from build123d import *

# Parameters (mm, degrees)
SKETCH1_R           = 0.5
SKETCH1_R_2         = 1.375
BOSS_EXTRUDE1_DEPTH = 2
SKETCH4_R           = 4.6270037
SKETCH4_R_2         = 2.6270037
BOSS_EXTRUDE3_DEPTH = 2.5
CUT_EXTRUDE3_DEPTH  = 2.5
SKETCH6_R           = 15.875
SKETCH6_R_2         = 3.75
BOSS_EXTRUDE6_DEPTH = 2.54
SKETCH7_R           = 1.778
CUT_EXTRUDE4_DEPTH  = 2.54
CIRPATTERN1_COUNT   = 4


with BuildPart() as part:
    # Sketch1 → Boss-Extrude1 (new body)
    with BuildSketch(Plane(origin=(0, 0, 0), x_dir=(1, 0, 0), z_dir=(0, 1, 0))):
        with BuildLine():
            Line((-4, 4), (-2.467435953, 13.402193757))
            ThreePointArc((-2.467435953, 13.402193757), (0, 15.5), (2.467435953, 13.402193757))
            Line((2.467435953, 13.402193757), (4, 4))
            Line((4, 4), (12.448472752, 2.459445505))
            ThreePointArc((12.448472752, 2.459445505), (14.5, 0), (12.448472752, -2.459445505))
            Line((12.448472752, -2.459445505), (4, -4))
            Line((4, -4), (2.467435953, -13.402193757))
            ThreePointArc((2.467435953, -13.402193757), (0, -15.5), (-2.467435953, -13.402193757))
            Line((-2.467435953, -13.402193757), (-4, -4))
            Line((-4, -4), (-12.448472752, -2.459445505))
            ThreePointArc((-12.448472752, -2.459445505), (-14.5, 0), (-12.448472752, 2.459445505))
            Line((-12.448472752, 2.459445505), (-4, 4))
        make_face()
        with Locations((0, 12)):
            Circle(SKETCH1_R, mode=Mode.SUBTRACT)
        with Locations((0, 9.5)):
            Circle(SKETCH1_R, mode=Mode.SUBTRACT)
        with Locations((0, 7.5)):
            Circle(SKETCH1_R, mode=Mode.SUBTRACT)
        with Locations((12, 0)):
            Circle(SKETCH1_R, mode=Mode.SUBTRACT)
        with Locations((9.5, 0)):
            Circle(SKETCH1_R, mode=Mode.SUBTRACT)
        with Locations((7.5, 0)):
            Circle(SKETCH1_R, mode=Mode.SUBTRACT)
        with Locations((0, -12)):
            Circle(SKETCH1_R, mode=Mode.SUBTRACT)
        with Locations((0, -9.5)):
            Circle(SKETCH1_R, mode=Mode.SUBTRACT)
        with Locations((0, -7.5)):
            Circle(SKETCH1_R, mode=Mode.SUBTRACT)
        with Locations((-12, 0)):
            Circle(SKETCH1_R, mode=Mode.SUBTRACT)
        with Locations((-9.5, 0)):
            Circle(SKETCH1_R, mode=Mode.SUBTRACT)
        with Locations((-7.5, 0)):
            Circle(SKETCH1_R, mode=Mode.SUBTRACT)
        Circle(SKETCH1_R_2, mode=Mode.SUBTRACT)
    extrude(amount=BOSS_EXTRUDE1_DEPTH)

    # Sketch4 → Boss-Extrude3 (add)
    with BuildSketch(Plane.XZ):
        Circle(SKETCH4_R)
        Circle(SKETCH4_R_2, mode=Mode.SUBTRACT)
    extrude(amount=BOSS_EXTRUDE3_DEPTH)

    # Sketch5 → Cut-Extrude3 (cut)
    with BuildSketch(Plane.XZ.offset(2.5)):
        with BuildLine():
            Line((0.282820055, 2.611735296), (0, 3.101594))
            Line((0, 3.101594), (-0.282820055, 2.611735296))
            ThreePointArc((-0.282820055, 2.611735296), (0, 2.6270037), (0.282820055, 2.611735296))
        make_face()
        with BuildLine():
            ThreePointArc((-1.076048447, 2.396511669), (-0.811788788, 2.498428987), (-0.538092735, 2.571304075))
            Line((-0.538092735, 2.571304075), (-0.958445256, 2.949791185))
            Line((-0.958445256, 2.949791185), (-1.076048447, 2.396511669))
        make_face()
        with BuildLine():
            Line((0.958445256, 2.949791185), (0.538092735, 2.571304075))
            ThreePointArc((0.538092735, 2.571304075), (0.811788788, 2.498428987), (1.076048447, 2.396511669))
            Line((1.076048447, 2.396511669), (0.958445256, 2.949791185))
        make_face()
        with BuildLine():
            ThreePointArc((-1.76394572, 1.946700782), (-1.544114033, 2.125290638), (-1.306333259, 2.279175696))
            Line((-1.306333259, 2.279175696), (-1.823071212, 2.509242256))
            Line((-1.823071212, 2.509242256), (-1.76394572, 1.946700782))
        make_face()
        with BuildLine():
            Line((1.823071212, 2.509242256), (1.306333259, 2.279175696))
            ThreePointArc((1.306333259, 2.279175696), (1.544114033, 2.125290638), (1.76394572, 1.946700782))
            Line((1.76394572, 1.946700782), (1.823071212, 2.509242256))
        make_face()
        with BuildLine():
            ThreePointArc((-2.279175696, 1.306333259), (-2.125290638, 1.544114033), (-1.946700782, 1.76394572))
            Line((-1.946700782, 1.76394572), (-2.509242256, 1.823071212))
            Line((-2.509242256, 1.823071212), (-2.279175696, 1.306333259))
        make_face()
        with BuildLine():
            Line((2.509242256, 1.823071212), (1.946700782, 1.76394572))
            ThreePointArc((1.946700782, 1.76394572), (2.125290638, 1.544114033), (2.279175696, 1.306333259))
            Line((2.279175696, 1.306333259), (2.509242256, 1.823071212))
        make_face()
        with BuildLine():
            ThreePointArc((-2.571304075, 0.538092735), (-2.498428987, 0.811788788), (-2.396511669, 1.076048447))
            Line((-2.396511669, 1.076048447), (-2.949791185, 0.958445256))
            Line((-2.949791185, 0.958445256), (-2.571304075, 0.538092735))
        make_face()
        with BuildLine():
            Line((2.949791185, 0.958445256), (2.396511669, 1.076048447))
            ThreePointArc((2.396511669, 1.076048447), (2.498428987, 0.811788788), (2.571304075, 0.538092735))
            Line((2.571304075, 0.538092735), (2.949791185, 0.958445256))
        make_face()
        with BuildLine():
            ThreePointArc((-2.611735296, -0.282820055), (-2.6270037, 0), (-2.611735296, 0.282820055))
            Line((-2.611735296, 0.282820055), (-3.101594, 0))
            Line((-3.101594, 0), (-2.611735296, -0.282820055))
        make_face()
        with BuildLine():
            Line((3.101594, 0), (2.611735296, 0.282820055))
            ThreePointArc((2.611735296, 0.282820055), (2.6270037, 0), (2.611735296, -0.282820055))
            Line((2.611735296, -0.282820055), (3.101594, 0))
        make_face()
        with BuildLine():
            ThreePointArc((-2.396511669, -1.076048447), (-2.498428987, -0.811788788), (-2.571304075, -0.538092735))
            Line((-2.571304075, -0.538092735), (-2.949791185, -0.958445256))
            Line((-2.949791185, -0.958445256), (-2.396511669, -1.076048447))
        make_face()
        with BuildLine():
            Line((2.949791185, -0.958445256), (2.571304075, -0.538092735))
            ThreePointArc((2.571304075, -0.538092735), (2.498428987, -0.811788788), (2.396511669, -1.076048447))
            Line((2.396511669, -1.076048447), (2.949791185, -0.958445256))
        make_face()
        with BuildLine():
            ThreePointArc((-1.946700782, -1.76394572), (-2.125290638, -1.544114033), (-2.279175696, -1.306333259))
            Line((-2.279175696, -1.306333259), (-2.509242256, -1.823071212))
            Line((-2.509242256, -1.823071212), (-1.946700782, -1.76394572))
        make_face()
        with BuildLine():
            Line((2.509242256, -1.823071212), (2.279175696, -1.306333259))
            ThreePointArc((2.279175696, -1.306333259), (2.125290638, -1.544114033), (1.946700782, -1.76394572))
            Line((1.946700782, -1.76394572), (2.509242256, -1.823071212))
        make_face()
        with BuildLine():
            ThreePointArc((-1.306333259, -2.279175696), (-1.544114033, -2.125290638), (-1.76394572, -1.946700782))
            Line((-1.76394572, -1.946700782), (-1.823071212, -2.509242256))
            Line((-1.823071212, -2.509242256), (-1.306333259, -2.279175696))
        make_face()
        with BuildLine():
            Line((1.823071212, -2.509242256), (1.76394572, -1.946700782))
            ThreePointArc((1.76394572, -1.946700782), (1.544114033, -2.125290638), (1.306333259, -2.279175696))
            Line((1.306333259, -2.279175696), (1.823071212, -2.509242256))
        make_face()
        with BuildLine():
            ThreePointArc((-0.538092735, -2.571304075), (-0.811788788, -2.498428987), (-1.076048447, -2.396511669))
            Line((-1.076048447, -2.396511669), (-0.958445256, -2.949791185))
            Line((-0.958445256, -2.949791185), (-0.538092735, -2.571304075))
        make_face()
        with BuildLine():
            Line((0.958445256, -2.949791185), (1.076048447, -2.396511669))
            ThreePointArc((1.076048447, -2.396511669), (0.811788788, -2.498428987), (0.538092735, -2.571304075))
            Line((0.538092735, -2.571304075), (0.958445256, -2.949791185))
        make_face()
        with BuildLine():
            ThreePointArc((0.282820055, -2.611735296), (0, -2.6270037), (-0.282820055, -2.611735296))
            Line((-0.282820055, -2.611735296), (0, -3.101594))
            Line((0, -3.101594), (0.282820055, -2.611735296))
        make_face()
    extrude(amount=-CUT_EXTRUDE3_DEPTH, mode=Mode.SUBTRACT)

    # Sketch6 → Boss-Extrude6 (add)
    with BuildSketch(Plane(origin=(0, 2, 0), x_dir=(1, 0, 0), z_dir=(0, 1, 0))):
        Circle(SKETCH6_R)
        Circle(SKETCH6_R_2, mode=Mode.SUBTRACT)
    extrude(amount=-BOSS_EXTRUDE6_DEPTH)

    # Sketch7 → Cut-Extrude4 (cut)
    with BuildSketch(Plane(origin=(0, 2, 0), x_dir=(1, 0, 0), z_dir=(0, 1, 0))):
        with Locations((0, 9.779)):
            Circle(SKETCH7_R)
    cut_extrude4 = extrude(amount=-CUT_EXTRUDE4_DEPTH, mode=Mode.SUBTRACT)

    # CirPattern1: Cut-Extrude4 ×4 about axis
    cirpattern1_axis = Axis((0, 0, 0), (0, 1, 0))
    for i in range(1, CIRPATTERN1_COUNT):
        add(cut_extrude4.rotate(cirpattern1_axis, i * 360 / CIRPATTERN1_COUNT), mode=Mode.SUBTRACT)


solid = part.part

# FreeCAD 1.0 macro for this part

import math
import FreeCAD as App
import Part
import Sketcher
Q = App.Units.Quantity

doc = App.newDocument("Part")
body = doc.addObject("PartDesign::Body", "Body")

# Sketch on XZ plane
sketch1 = body.newObject("Sketcher::SketchObject", "Sketch")
sketch1.AttachmentSupport = (doc.getObject("XZ_Plane"), [""])
sketch1.MapMode = "FlatFace"
sketch1.addGeometry([
    Part.LineSegment(App.Vector(-2.5, -13.4, 0), App.Vector(-4, -4, 0)),  # 0
    Part.LineSegment(App.Vector(-4, -4, 0), App.Vector(-12.4, -2.5, 0)),  # 1
    Part.ArcOfCircle(Part.Circle(App.Vector(-12, 0, 0), App.Vector(0, 0, 1), 2.5), math.radians(100), math.radians(260)),  # 2
    Part.LineSegment(App.Vector(-12.4, 2.5, 0), App.Vector(-4, 4, 0)),  # 3
    Part.LineSegment(App.Vector(-4, 4, 0), App.Vector(-2.5, 13.4, 0)),  # 4
    Part.ArcOfCircle(Part.Circle(App.Vector(0, 13, 0), App.Vector(0, 0, 1), 2.5), math.radians(9), math.radians(171)),  # 5
    Part.LineSegment(App.Vector(2.5, 13.4, 0), App.Vector(4, 4, 0)),  # 6
    Part.LineSegment(App.Vector(4, 4, 0), App.Vector(12.4, 2.5, 0)),  # 7
    Part.ArcOfCircle(Part.Circle(App.Vector(12, 0, 0), App.Vector(0, 0, 1), 2.5), math.radians(-80), math.radians(80)),  # 8
    Part.LineSegment(App.Vector(12.4, -2.5, 0), App.Vector(4, -4, 0)),  # 9
    Part.LineSegment(App.Vector(4, -4, 0), App.Vector(2.5, -13.4, 0)),  # 10
    Part.ArcOfCircle(Part.Circle(App.Vector(0, -13, 0), App.Vector(0, 0, 1), 2.5), math.radians(-171), math.radians(-9)),  # 11
    Part.Circle(App.Vector(0, 12, 0), App.Vector(0, 0, 1), 0.5),  # 12
    Part.Circle(App.Vector(0, 9.5, 0), App.Vector(0, 0, 1), 0.5),  # 13
    Part.Circle(App.Vector(0, 7.5, 0), App.Vector(0, 0, 1), 0.5),  # 14
    Part.Circle(App.Vector(12, 0, 0), App.Vector(0, 0, 1), 0.5),  # 15
    Part.Circle(App.Vector(9.5, 0, 0), App.Vector(0, 0, 1), 0.5),  # 16
    Part.Circle(App.Vector(7.5, 0, 0), App.Vector(0, 0, 1), 0.5),  # 17
    Part.Circle(App.Vector(0, 0, 0), App.Vector(0, 0, 1), 1.4),  # 18
    Part.Circle(App.Vector(-7.5, 0, 0), App.Vector(0, 0, 1), 0.5),  # 19
    Part.Circle(App.Vector(-9.5, 0, 0), App.Vector(0, 0, 1), 0.5),  # 20
    Part.Circle(App.Vector(-12, 0, 0), App.Vector(0, 0, 1), 0.5),  # 21
    Part.Circle(App.Vector(0, -7.5, 0), App.Vector(0, 0, 1), 0.5),  # 22
    Part.Circle(App.Vector(0, -9.5, 0), App.Vector(0, 0, 1), 0.5),  # 23
    Part.Circle(App.Vector(0, -12, 0), App.Vector(0, 0, 1), 0.5),  # 24
], False)
sketch1.addConstraint([
    Sketcher.Constraint("Coincident", 0, 2, 1, 1),
    Sketcher.Constraint("Tangent", 1, 2, 2, 2),
    Sketcher.Constraint("Tangent", 2, 1, 3, 1),
    Sketcher.Constraint("Coincident", 3, 2, 4, 1),
    Sketcher.Constraint("Tangent", 4, 2, 5, 2),
    Sketcher.Constraint("Tangent", 5, 1, 6, 1),
    Sketcher.Constraint("Coincident", 6, 2, 7, 1),
    Sketcher.Constraint("Tangent", 7, 2, 8, 2),
    Sketcher.Constraint("Tangent", 8, 1, 9, 1),
    Sketcher.Constraint("Coincident", 9, 2, 10, 1),
    Sketcher.Constraint("Tangent", 10, 2, 11, 2),
    Sketcher.Constraint("Tangent", 11, 1, 0, 1),
    Sketcher.Constraint("Coincident", 18, 3, -1, 1),
    Sketcher.Constraint("Coincident", 15, 3, 8, 3),
    Sketcher.Constraint("Coincident", 21, 3, 2, 3),
    Sketcher.Constraint("Equal", 2, 5),
    Sketcher.Constraint("Equal", 5, 8),
    Sketcher.Constraint("Equal", 8, 11),
    Sketcher.Constraint("Equal", 12, 13),
    Sketcher.Constraint("Equal", 13, 14),
    Sketcher.Constraint("Equal", 14, 15),
    Sketcher.Constraint("Equal", 15, 16),
    Sketcher.Constraint("Equal", 16, 17),
    Sketcher.Constraint("Equal", 17, 19),
    Sketcher.Constraint("Equal", 19, 20),
    Sketcher.Constraint("Equal", 20, 21),
    Sketcher.Constraint("Equal", 21, 22),
    Sketcher.Constraint("Equal", 22, 23),
    Sketcher.Constraint("Equal", 23, 24),
    Sketcher.Constraint("Symmetric", 2, 3, 8, 3, -1, 1),
    Sketcher.Constraint("Symmetric", 5, 3, 11, 3, -1, 1),
    Sketcher.Constraint("Symmetric", 17, 3, 19, 3, -1, 1),
    Sketcher.Constraint("Symmetric", 16, 3, 20, 3, -1, 1),
    Sketcher.Constraint("Symmetric", 14, 3, 22, 3, -1, 1),
    Sketcher.Constraint("Symmetric", 13, 3, 23, 3, -1, 1),
    Sketcher.Constraint("Symmetric", 12, 3, 24, 3, -1, 1),
    Sketcher.Constraint("Symmetric", 0, 2, 6, 2, -1, 1),
    Sketcher.Constraint("Symmetric", 3, 2, 9, 2, -1, 1),
    Sketcher.Constraint("Symmetric", 4, 2, 5, 1, -2),
    Sketcher.Constraint("Symmetric", 2, 1, 7, 2, -2),
    Sketcher.Constraint("PointOnObject", 12, 3, -2),
    Sketcher.Constraint("PointOnObject", 13, 3, -2),
    Sketcher.Constraint("PointOnObject", 14, 3, -2),
    Sketcher.Constraint("PointOnObject", 16, 3, -1),
    Sketcher.Constraint("PointOnObject", 17, 3, -1),
    Sketcher.Constraint("Diameter", 12, 1.0),
    Sketcher.Constraint("Radius", 2, 2.5),
    Sketcher.Constraint("Diameter", 18, 2.75),
    Sketcher.Constraint("DistanceX", 2, 3, -1, 1, 12.0),
    Sketcher.Constraint("DistanceY", -1, 1, 5, 3, 13.0),
    Sketcher.Constraint("DistanceY", -1, 1, 12, 3, 12.0),
    Sketcher.Constraint("DistanceX", 0, 2, -1, 1, 4.0),
    Sketcher.Constraint("DistanceY", 0, 2, -1, 1, 4.0),
    Sketcher.Constraint("DistanceY", 14, 3, 13, 3, 2.0),
    Sketcher.Constraint("DistanceX", 17, 3, 16, 3, 2.0),
    Sketcher.Constraint("DistanceY", -1, 1, 13, 3, 9.5),
    Sketcher.Constraint("DistanceX", -1, 1, 16, 3, 9.5),
])
pad1 = body.newObject("PartDesign::Pad", "Pad")
pad1.Profile = sketch1
pad1.Length = 2
pad1.Reversed = True

# Sketch on XZ plane
sketch2 = body.newObject("Sketcher::SketchObject", "Sketch001")
sketch2.AttachmentSupport = (doc.getObject("XZ_Plane"), [""])
sketch2.MapMode = "FlatFace"
sketch2.addGeometry([
    Part.Circle(App.Vector(0, 0, 0), App.Vector(0, 0, 1), 4.6),
    Part.Circle(App.Vector(0, 0, 0), App.Vector(0, 0, 1), 2.6),
], False)
sketch2.addConstraint([
    Sketcher.Constraint("Coincident", 0, 3, -1, 1),
    Sketcher.Constraint("Coincident", 1, 3, -1, 1),
    Sketcher.Constraint("Diameter", 0, 9.254007),
    Sketcher.Constraint("Diameter", 1, 5.254007),
])
pad2 = body.newObject("PartDesign::Pad", "Pad001")
pad2.Profile = sketch2
pad2.Length = 2.5

# Sketch on XZ plane
sketch3 = body.newObject("Sketcher::SketchObject", "Sketch002")
sketch3.AttachmentSupport = (doc.getObject("XZ_Plane"), [""])
sketch3.MapMode = "FlatFace"
sketch3.AttachmentOffset = App.Placement(App.Vector(0, 0, 2.5), App.Rotation())
sketch3.addGeometry([
    Part.LineSegment(App.Vector(0.3, 2.6, 0), App.Vector(0, 3.1, 0)),  # 0
    Part.LineSegment(App.Vector(0, 3.1, 0), App.Vector(-0.3, 2.6, 0)),  # 1
    Part.ArcOfCircle(Part.Circle(App.Vector(0, 0, 0), App.Vector(0, 0, 1), 2.6), math.radians(83.82), math.radians(96.18)),  # 2
    Part.ArcOfCircle(Part.Circle(App.Vector(0, 0, 0), App.Vector(0, 0, 1), 2.6), math.radians(101.82), math.radians(114.18)),  # 3
    Part.LineSegment(App.Vector(-0.5, 2.6, 0), App.Vector(-1, 2.9, 0)),  # 4
    Part.LineSegment(App.Vector(-1, 2.9, 0), App.Vector(-1.1, 2.4, 0)),  # 5
    Part.LineSegment(App.Vector(1, 2.9, 0), App.Vector(0.5, 2.6, 0)),  # 6
    Part.ArcOfCircle(Part.Circle(App.Vector(0, 0, 0), App.Vector(0, 0, 1), 2.6), math.radians(65.82), math.radians(78.18)),  # 7
    Part.LineSegment(App.Vector(1.1, 2.4, 0), App.Vector(1, 2.9, 0)),  # 8
    Part.ArcOfCircle(Part.Circle(App.Vector(0, 0, 0), App.Vector(0, 0, 1), 2.6), math.radians(119.82), math.radians(132.18)),  # 9
    Part.LineSegment(App.Vector(-1.3, 2.3, 0), App.Vector(-1.8, 2.5, 0)),  # 10
    Part.LineSegment(App.Vector(-1.8, 2.5, 0), App.Vector(-1.8, 1.9, 0)),  # 11
    Part.LineSegment(App.Vector(1.8, 2.5, 0), App.Vector(1.3, 2.3, 0)),  # 12
    Part.ArcOfCircle(Part.Circle(App.Vector(0, 0, 0), App.Vector(0, 0, 1), 2.6), math.radians(47.82), math.radians(60.18)),  # 13
    Part.LineSegment(App.Vector(1.8, 1.9, 0), App.Vector(1.8, 2.5, 0)),  # 14
    Part.ArcOfCircle(Part.Circle(App.Vector(0, 0, 0), App.Vector(0, 0, 1), 2.6), math.radians(137.82), math.radians(150.18)),  # 15
    Part.LineSegment(App.Vector(-1.9, 1.8, 0), App.Vector(-2.5, 1.8, 0)),  # 16
    Part.LineSegment(App.Vector(-2.5, 1.8, 0), App.Vector(-2.3, 1.3, 0)),  # 17
    Part.LineSegment(App.Vector(2.5, 1.8, 0), App.Vector(1.9, 1.8, 0)),  # 18
    Part.ArcOfCircle(Part.Circle(App.Vector(0, 0, 0), App.Vector(0, 0, 1), 2.6), math.radians(29.82), math.radians(42.18)),  # 19
    Part.LineSegment(App.Vector(2.3, 1.3, 0), App.Vector(2.5, 1.8, 0)),  # 20
    Part.ArcOfCircle(Part.Circle(App.Vector(0, 0, 0), App.Vector(0, 0, 1), 2.6), math.radians(155.82), math.radians(168.18)),  # 21
    Part.LineSegment(App.Vector(-2.4, 1.1, 0), App.Vector(-2.9, 1, 0)),  # 22
    Part.LineSegment(App.Vector(-2.9, 1, 0), App.Vector(-2.6, 0.5, 0)),  # 23
    Part.LineSegment(App.Vector(2.9, 1, 0), App.Vector(2.4, 1.1, 0)),  # 24
    Part.ArcOfCircle(Part.Circle(App.Vector(0, 0, 0), App.Vector(0, 0, 1), 2.6), math.radians(11.82), math.radians(24.18)),  # 25
    Part.LineSegment(App.Vector(2.6, 0.5, 0), App.Vector(2.9, 1, 0)),  # 26
    Part.ArcOfCircle(Part.Circle(App.Vector(0, 0, 0), App.Vector(0, 0, 1), 2.6), math.radians(173.82), math.radians(186.18)),  # 27
    Part.LineSegment(App.Vector(-2.6, 0.3, 0), App.Vector(-3.1, 0, 0)),  # 28
    Part.LineSegment(App.Vector(-3.1, 0, 0), App.Vector(-2.6, -0.3, 0)),  # 29
    Part.LineSegment(App.Vector(3.1, 0, 0), App.Vector(2.6, 0.3, 0)),  # 30
    Part.ArcOfCircle(Part.Circle(App.Vector(0, 0, 0), App.Vector(0, 0, 1), 2.6), math.radians(-6.18), math.radians(6.18)),  # 31
    Part.LineSegment(App.Vector(2.6, -0.3, 0), App.Vector(3.1, 0, 0)),  # 32
    Part.ArcOfCircle(Part.Circle(App.Vector(0, 0, 0), App.Vector(0, 0, 1), 2.6), math.radians(-168.18), math.radians(-155.82)),  # 33
    Part.LineSegment(App.Vector(-2.6, -0.5, 0), App.Vector(-2.9, -1, 0)),  # 34
    Part.LineSegment(App.Vector(-2.9, -1, 0), App.Vector(-2.4, -1.1, 0)),  # 35
    Part.LineSegment(App.Vector(2.9, -1, 0), App.Vector(2.6, -0.5, 0)),  # 36
    Part.ArcOfCircle(Part.Circle(App.Vector(0, 0, 0), App.Vector(0, 0, 1), 2.6), math.radians(-24.18), math.radians(-11.82)),  # 37
    Part.LineSegment(App.Vector(2.4, -1.1, 0), App.Vector(2.9, -1, 0)),  # 38
    Part.ArcOfCircle(Part.Circle(App.Vector(0, 0, 0), App.Vector(0, 0, 1), 2.6), math.radians(-150.18), math.radians(-137.82)),  # 39
    Part.LineSegment(App.Vector(-2.3, -1.3, 0), App.Vector(-2.5, -1.8, 0)),  # 40
    Part.LineSegment(App.Vector(-2.5, -1.8, 0), App.Vector(-1.9, -1.8, 0)),  # 41
    Part.LineSegment(App.Vector(2.5, -1.8, 0), App.Vector(2.3, -1.3, 0)),  # 42
    Part.ArcOfCircle(Part.Circle(App.Vector(0, 0, 0), App.Vector(0, 0, 1), 2.6), math.radians(-42.18), math.radians(-29.82)),  # 43
    Part.LineSegment(App.Vector(1.9, -1.8, 0), App.Vector(2.5, -1.8, 0)),  # 44
    Part.ArcOfCircle(Part.Circle(App.Vector(0, 0, 0), App.Vector(0, 0, 1), 2.6), math.radians(-132.18), math.radians(-119.82)),  # 45
    Part.LineSegment(App.Vector(-1.8, -1.9, 0), App.Vector(-1.8, -2.5, 0)),  # 46
    Part.LineSegment(App.Vector(-1.8, -2.5, 0), App.Vector(-1.3, -2.3, 0)),  # 47
    Part.LineSegment(App.Vector(1.8, -2.5, 0), App.Vector(1.8, -1.9, 0)),  # 48
    Part.ArcOfCircle(Part.Circle(App.Vector(0, 0, 0), App.Vector(0, 0, 1), 2.6), math.radians(-60.18), math.radians(-47.82)),  # 49
    Part.LineSegment(App.Vector(1.3, -2.3, 0), App.Vector(1.8, -2.5, 0)),  # 50
    Part.ArcOfCircle(Part.Circle(App.Vector(0, 0, 0), App.Vector(0, 0, 1), 2.6), math.radians(-114.18), math.radians(-101.82)),  # 51
    Part.LineSegment(App.Vector(-1.1, -2.4, 0), App.Vector(-1, -2.9, 0)),  # 52
    Part.LineSegment(App.Vector(-1, -2.9, 0), App.Vector(-0.5, -2.6, 0)),  # 53
    Part.LineSegment(App.Vector(1, -2.9, 0), App.Vector(1.1, -2.4, 0)),  # 54
    Part.ArcOfCircle(Part.Circle(App.Vector(0, 0, 0), App.Vector(0, 0, 1), 2.6), math.radians(-78.18), math.radians(-65.82)),  # 55
    Part.LineSegment(App.Vector(0.5, -2.6, 0), App.Vector(1, -2.9, 0)),  # 56
    Part.ArcOfCircle(Part.Circle(App.Vector(0, 0, 0), App.Vector(0, 0, 1), 2.6), math.radians(-96.18), math.radians(-83.82)),  # 57
    Part.LineSegment(App.Vector(-0.3, -2.6, 0), App.Vector(0, -3.1, 0)),  # 58
    Part.LineSegment(App.Vector(0, -3.1, 0), App.Vector(0.3, -2.6, 0)),  # 59
], False)
sketch3.addConstraint([
    Sketcher.Constraint("Coincident", 0, 2, 1, 1),
    Sketcher.Constraint("Coincident", 1, 2, 2, 2),
    Sketcher.Constraint("Coincident", 2, 1, 0, 1),
    Sketcher.Constraint("Coincident", 3, 1, 4, 1),
    Sketcher.Constraint("Coincident", 4, 2, 5, 1),
    Sketcher.Constraint("Coincident", 5, 2, 3, 2),
    Sketcher.Constraint("Coincident", 6, 2, 7, 2),
    Sketcher.Constraint("Coincident", 7, 1, 8, 1),
    Sketcher.Constraint("Coincident", 8, 2, 6, 1),
    Sketcher.Constraint("Coincident", 9, 1, 10, 1),
    Sketcher.Constraint("Coincident", 10, 2, 11, 1),
    Sketcher.Constraint("Coincident", 11, 2, 9, 2),
    Sketcher.Constraint("Coincident", 12, 2, 13, 2),
    Sketcher.Constraint("Coincident", 13, 1, 14, 1),
    Sketcher.Constraint("Coincident", 14, 2, 12, 1),
    Sketcher.Constraint("Coincident", 15, 1, 16, 1),
    Sketcher.Constraint("Coincident", 16, 2, 17, 1),
    Sketcher.Constraint("Coincident", 17, 2, 15, 2),
    Sketcher.Constraint("Coincident", 18, 2, 19, 2),
    Sketcher.Constraint("Coincident", 19, 1, 20, 1),
    Sketcher.Constraint("Coincident", 20, 2, 18, 1),
    Sketcher.Constraint("Coincident", 21, 1, 22, 1),
    Sketcher.Constraint("Coincident", 22, 2, 23, 1),
    Sketcher.Constraint("Coincident", 23, 2, 21, 2),
    Sketcher.Constraint("Coincident", 24, 2, 25, 2),
    Sketcher.Constraint("Coincident", 25, 1, 26, 1),
    Sketcher.Constraint("Coincident", 26, 2, 24, 1),
    Sketcher.Constraint("Coincident", 27, 1, 28, 1),
    Sketcher.Constraint("Coincident", 28, 2, 29, 1),
    Sketcher.Constraint("Coincident", 29, 2, 27, 2),
    Sketcher.Constraint("Coincident", 30, 2, 31, 2),
    Sketcher.Constraint("Coincident", 31, 1, 32, 1),
    Sketcher.Constraint("Coincident", 32, 2, 30, 1),
    Sketcher.Constraint("Coincident", 33, 1, 34, 1),
    Sketcher.Constraint("Coincident", 34, 2, 35, 1),
    Sketcher.Constraint("Coincident", 35, 2, 33, 2),
    Sketcher.Constraint("Coincident", 36, 2, 37, 2),
    Sketcher.Constraint("Coincident", 37, 1, 38, 1),
    Sketcher.Constraint("Coincident", 38, 2, 36, 1),
    Sketcher.Constraint("Coincident", 39, 1, 40, 1),
    Sketcher.Constraint("Coincident", 40, 2, 41, 1),
    Sketcher.Constraint("Coincident", 41, 2, 39, 2),
    Sketcher.Constraint("Coincident", 42, 2, 43, 2),
    Sketcher.Constraint("Coincident", 43, 1, 44, 1),
    Sketcher.Constraint("Coincident", 44, 2, 42, 1),
    Sketcher.Constraint("Coincident", 45, 1, 46, 1),
    Sketcher.Constraint("Coincident", 46, 2, 47, 1),
    Sketcher.Constraint("Coincident", 47, 2, 45, 2),
    Sketcher.Constraint("Coincident", 48, 2, 49, 2),
    Sketcher.Constraint("Coincident", 49, 1, 50, 1),
    Sketcher.Constraint("Coincident", 50, 2, 48, 1),
    Sketcher.Constraint("Coincident", 51, 1, 52, 1),
    Sketcher.Constraint("Coincident", 52, 2, 53, 1),
    Sketcher.Constraint("Coincident", 53, 2, 51, 2),
    Sketcher.Constraint("Coincident", 54, 2, 55, 2),
    Sketcher.Constraint("Coincident", 55, 1, 56, 1),
    Sketcher.Constraint("Coincident", 56, 2, 54, 1),
    Sketcher.Constraint("Coincident", 57, 1, 58, 1),
    Sketcher.Constraint("Coincident", 58, 2, 59, 1),
    Sketcher.Constraint("Coincident", 59, 2, 57, 2),
    Sketcher.Constraint("Coincident", 2, 3, -1, 1),
    Sketcher.Constraint("Coincident", 3, 3, -1, 1),
    Sketcher.Constraint("Coincident", 7, 3, -1, 1),
    Sketcher.Constraint("Coincident", 9, 3, -1, 1),
    Sketcher.Constraint("Coincident", 13, 3, -1, 1),
    Sketcher.Constraint("Coincident", 15, 3, -1, 1),
    Sketcher.Constraint("Coincident", 19, 3, -1, 1),
    Sketcher.Constraint("Coincident", 21, 3, -1, 1),
    Sketcher.Constraint("Coincident", 25, 3, -1, 1),
    Sketcher.Constraint("Coincident", 27, 3, -1, 1),
    Sketcher.Constraint("Coincident", 31, 3, -1, 1),
    Sketcher.Constraint("Coincident", 33, 3, -1, 1),
    Sketcher.Constraint("Coincident", 37, 3, -1, 1),
    Sketcher.Constraint("Coincident", 39, 3, -1, 1),
    Sketcher.Constraint("Coincident", 43, 3, -1, 1),
    Sketcher.Constraint("Coincident", 45, 3, -1, 1),
    Sketcher.Constraint("Coincident", 49, 3, -1, 1),
    Sketcher.Constraint("Coincident", 51, 3, -1, 1),
    Sketcher.Constraint("Coincident", 55, 3, -1, 1),
    Sketcher.Constraint("Coincident", 57, 3, -1, 1),
    Sketcher.Constraint("Equal", 2, 3),
    Sketcher.Constraint("Equal", 3, 7),
    Sketcher.Constraint("Equal", 7, 9),
    Sketcher.Constraint("Equal", 9, 13),
    Sketcher.Constraint("Equal", 13, 15),
    Sketcher.Constraint("Equal", 15, 19),
    Sketcher.Constraint("Equal", 19, 21),
    Sketcher.Constraint("Equal", 21, 25),
    Sketcher.Constraint("Equal", 25, 27),
    Sketcher.Constraint("Equal", 27, 31),
    Sketcher.Constraint("Equal", 31, 33),
    Sketcher.Constraint("Equal", 33, 37),
    Sketcher.Constraint("Equal", 37, 39),
    Sketcher.Constraint("Equal", 39, 43),
    Sketcher.Constraint("Equal", 43, 45),
    Sketcher.Constraint("Equal", 45, 49),
    Sketcher.Constraint("Equal", 49, 51),
    Sketcher.Constraint("Equal", 51, 55),
    Sketcher.Constraint("Equal", 55, 57),
    Sketcher.Constraint("Symmetric", 28, 2, 32, 2, -1, 1),
    Sketcher.Constraint("Symmetric", 26, 2, 34, 2, -1, 1),
    Sketcher.Constraint("Symmetric", 22, 2, 38, 2, -1, 1),
    Sketcher.Constraint("Symmetric", 20, 2, 40, 2, -1, 1),
    Sketcher.Constraint("Symmetric", 16, 2, 44, 2, -1, 1),
    Sketcher.Constraint("Symmetric", 14, 2, 46, 2, -1, 1),
    Sketcher.Constraint("Symmetric", 10, 2, 50, 2, -1, 1),
    Sketcher.Constraint("Symmetric", 8, 2, 52, 2, -1, 1),
    Sketcher.Constraint("Symmetric", 4, 2, 56, 2, -1, 1),
    Sketcher.Constraint("Symmetric", 0, 2, 58, 2, -1, 1),
    Sketcher.Constraint("Symmetric", 4, 2, 8, 2, -2),
    Sketcher.Constraint("Symmetric", 10, 2, 14, 2, -2),
    Sketcher.Constraint("Symmetric", 16, 2, 20, 2, -2),
    Sketcher.Constraint("Symmetric", 22, 2, 26, 2, -2),
    Sketcher.Constraint("PointOnObject", 0, 2, -2),
    Sketcher.Constraint("PointOnObject", 28, 2, -1),
    Sketcher.Constraint("Perpendicular", 14, 16),
    Sketcher.Constraint("Perpendicular", 12, 17),
    Sketcher.Constraint("Perpendicular", 11, 18),
    Sketcher.Constraint("Perpendicular", 10, 20),
    Sketcher.Constraint("Perpendicular", 8, 22),
    Sketcher.Constraint("Perpendicular", 6, 23),
    Sketcher.Constraint("Perpendicular", 5, 24),
    Sketcher.Constraint("Perpendicular", 4, 26),
    Sketcher.Constraint("Perpendicular", 0, 28),
    Sketcher.Constraint("Perpendicular", 1, 29),
    Sketcher.Constraint("Parallel", 29, 30),
    Sketcher.Constraint("Parallel", 28, 32),
    Sketcher.Constraint("Parallel", 26, 34),
    Sketcher.Constraint("Parallel", 24, 35),
    Sketcher.Constraint("Parallel", 23, 36),
    Sketcher.Constraint("Parallel", 22, 38),
    Sketcher.Constraint("Parallel", 20, 40),
    Sketcher.Constraint("Parallel", 18, 41),
    Sketcher.Constraint("Parallel", 17, 42),
    Sketcher.Constraint("Parallel", 16, 44),
    Sketcher.Constraint("Perpendicular", 44, 46),
    Sketcher.Constraint("Perpendicular", 42, 47),
    Sketcher.Constraint("Perpendicular", 41, 48),
    Sketcher.Constraint("Perpendicular", 40, 50),
    Sketcher.Constraint("Perpendicular", 38, 52),
    Sketcher.Constraint("Perpendicular", 36, 53),
    Sketcher.Constraint("Perpendicular", 35, 54),
    Sketcher.Constraint("Perpendicular", 34, 56),
    Sketcher.Constraint("Perpendicular", 32, 58),
    Sketcher.Constraint("Perpendicular", 30, 59),
    Sketcher.Constraint("Horizontal", 1, 2, 2, 1),
    Sketcher.Constraint("Horizontal", 3, 1, 6, 2),
    Sketcher.Constraint("Horizontal", 5, 2, 7, 1),
    Sketcher.Constraint("Horizontal", 9, 1, 12, 2),
    Sketcher.Constraint("Horizontal", 11, 2, 13, 1),
    Sketcher.Constraint("Equal", 1, 4),
    Sketcher.Constraint("Equal", 4, 5),
    Sketcher.Constraint("Equal", 8, 10),
    Sketcher.Constraint("Equal", 10, 11),
    Sketcher.Constraint("Equal", 14, 16),
    Sketcher.Constraint("Equal", 16, 17),
    Sketcher.Constraint("Equal", 20, 22),
    Sketcher.Constraint("Equal", 22, 23),
    Sketcher.Constraint("Equal", 26, 28),
    Sketcher.Constraint("Angle", 0, Q("120 deg")),
    Sketcher.Constraint("Angle", 4, Q("138 deg")),
    Sketcher.Constraint("Angle", 5, Q("-102 deg")),
    Sketcher.Constraint("Angle", 10, Q("156 deg")),
    Sketcher.Constraint("Angle", 11, Q("-84 deg")),
    Sketcher.Constraint("Radius", 2, 2.627004),
    Sketcher.Constraint("DistanceY", -1, 1, 11, 2, 1.946701),
])
pocket1 = body.newObject("PartDesign::Pocket", "Pocket")
pocket1.Profile = sketch3
pocket1.Length = 2.5

# Sketch on XZ plane
sketch4 = body.newObject("Sketcher::SketchObject", "Sketch003")
sketch4.AttachmentSupport = (doc.getObject("XZ_Plane"), [""])
sketch4.MapMode = "FlatFace"
sketch4.AttachmentOffset = App.Placement(App.Vector(0, 0, -2), App.Rotation())
sketch4.addGeometry([
    Part.Circle(App.Vector(0, 0, 0), App.Vector(0, 0, 1), 15.9),
    Part.Circle(App.Vector(0, 0, 0), App.Vector(0, 0, 1), 3.8),
], False)
sketch4.addConstraint([
    Sketcher.Constraint("Coincident", 0, 3, -1, 1),
    Sketcher.Constraint("Coincident", 1, 3, -1, 1),
    Sketcher.Constraint("Diameter", 1, 7.5),
    Sketcher.Constraint("Diameter", 0, 31.75),
])
pad3 = body.newObject("PartDesign::Pad", "Pad002")
pad3.Profile = sketch4
pad3.Length = 2.54

# Sketch on XZ plane
sketch5 = body.newObject("Sketcher::SketchObject", "Sketch004")
sketch5.AttachmentSupport = (doc.getObject("XZ_Plane"), [""])
sketch5.MapMode = "FlatFace"
sketch5.AttachmentOffset = App.Placement(App.Vector(0, 0, -2), App.Rotation())
sketch5.addGeometry(Part.Circle(App.Vector(0, -9.8, 0), App.Vector(0, 0, 1), 1.8), False)
sketch5.addConstraint([
    Sketcher.Constraint("PointOnObject", 0, 3, -2),
    Sketcher.Constraint("Diameter", 0, 3.556),
    Sketcher.Constraint("DistanceY", 0, 3, -1, 1, 9.779),
])
pocket2 = body.newObject("PartDesign::Pocket", "Pocket001")
pocket2.Profile = sketch5
pocket2.Length = 2.54
pocket2.Reversed = True
doc.recompute()

polarpattern = body.newObject("PartDesign::PolarPattern", "PolarPattern")
polarpattern.Originals = [pocket2]
polarpattern.Axis = (doc.getObject("Y_Axis"), [""])
polarpattern.Angle = 360
polarpattern.Occurrences = 4
body.Tip = polarpattern

doc.recompute()
